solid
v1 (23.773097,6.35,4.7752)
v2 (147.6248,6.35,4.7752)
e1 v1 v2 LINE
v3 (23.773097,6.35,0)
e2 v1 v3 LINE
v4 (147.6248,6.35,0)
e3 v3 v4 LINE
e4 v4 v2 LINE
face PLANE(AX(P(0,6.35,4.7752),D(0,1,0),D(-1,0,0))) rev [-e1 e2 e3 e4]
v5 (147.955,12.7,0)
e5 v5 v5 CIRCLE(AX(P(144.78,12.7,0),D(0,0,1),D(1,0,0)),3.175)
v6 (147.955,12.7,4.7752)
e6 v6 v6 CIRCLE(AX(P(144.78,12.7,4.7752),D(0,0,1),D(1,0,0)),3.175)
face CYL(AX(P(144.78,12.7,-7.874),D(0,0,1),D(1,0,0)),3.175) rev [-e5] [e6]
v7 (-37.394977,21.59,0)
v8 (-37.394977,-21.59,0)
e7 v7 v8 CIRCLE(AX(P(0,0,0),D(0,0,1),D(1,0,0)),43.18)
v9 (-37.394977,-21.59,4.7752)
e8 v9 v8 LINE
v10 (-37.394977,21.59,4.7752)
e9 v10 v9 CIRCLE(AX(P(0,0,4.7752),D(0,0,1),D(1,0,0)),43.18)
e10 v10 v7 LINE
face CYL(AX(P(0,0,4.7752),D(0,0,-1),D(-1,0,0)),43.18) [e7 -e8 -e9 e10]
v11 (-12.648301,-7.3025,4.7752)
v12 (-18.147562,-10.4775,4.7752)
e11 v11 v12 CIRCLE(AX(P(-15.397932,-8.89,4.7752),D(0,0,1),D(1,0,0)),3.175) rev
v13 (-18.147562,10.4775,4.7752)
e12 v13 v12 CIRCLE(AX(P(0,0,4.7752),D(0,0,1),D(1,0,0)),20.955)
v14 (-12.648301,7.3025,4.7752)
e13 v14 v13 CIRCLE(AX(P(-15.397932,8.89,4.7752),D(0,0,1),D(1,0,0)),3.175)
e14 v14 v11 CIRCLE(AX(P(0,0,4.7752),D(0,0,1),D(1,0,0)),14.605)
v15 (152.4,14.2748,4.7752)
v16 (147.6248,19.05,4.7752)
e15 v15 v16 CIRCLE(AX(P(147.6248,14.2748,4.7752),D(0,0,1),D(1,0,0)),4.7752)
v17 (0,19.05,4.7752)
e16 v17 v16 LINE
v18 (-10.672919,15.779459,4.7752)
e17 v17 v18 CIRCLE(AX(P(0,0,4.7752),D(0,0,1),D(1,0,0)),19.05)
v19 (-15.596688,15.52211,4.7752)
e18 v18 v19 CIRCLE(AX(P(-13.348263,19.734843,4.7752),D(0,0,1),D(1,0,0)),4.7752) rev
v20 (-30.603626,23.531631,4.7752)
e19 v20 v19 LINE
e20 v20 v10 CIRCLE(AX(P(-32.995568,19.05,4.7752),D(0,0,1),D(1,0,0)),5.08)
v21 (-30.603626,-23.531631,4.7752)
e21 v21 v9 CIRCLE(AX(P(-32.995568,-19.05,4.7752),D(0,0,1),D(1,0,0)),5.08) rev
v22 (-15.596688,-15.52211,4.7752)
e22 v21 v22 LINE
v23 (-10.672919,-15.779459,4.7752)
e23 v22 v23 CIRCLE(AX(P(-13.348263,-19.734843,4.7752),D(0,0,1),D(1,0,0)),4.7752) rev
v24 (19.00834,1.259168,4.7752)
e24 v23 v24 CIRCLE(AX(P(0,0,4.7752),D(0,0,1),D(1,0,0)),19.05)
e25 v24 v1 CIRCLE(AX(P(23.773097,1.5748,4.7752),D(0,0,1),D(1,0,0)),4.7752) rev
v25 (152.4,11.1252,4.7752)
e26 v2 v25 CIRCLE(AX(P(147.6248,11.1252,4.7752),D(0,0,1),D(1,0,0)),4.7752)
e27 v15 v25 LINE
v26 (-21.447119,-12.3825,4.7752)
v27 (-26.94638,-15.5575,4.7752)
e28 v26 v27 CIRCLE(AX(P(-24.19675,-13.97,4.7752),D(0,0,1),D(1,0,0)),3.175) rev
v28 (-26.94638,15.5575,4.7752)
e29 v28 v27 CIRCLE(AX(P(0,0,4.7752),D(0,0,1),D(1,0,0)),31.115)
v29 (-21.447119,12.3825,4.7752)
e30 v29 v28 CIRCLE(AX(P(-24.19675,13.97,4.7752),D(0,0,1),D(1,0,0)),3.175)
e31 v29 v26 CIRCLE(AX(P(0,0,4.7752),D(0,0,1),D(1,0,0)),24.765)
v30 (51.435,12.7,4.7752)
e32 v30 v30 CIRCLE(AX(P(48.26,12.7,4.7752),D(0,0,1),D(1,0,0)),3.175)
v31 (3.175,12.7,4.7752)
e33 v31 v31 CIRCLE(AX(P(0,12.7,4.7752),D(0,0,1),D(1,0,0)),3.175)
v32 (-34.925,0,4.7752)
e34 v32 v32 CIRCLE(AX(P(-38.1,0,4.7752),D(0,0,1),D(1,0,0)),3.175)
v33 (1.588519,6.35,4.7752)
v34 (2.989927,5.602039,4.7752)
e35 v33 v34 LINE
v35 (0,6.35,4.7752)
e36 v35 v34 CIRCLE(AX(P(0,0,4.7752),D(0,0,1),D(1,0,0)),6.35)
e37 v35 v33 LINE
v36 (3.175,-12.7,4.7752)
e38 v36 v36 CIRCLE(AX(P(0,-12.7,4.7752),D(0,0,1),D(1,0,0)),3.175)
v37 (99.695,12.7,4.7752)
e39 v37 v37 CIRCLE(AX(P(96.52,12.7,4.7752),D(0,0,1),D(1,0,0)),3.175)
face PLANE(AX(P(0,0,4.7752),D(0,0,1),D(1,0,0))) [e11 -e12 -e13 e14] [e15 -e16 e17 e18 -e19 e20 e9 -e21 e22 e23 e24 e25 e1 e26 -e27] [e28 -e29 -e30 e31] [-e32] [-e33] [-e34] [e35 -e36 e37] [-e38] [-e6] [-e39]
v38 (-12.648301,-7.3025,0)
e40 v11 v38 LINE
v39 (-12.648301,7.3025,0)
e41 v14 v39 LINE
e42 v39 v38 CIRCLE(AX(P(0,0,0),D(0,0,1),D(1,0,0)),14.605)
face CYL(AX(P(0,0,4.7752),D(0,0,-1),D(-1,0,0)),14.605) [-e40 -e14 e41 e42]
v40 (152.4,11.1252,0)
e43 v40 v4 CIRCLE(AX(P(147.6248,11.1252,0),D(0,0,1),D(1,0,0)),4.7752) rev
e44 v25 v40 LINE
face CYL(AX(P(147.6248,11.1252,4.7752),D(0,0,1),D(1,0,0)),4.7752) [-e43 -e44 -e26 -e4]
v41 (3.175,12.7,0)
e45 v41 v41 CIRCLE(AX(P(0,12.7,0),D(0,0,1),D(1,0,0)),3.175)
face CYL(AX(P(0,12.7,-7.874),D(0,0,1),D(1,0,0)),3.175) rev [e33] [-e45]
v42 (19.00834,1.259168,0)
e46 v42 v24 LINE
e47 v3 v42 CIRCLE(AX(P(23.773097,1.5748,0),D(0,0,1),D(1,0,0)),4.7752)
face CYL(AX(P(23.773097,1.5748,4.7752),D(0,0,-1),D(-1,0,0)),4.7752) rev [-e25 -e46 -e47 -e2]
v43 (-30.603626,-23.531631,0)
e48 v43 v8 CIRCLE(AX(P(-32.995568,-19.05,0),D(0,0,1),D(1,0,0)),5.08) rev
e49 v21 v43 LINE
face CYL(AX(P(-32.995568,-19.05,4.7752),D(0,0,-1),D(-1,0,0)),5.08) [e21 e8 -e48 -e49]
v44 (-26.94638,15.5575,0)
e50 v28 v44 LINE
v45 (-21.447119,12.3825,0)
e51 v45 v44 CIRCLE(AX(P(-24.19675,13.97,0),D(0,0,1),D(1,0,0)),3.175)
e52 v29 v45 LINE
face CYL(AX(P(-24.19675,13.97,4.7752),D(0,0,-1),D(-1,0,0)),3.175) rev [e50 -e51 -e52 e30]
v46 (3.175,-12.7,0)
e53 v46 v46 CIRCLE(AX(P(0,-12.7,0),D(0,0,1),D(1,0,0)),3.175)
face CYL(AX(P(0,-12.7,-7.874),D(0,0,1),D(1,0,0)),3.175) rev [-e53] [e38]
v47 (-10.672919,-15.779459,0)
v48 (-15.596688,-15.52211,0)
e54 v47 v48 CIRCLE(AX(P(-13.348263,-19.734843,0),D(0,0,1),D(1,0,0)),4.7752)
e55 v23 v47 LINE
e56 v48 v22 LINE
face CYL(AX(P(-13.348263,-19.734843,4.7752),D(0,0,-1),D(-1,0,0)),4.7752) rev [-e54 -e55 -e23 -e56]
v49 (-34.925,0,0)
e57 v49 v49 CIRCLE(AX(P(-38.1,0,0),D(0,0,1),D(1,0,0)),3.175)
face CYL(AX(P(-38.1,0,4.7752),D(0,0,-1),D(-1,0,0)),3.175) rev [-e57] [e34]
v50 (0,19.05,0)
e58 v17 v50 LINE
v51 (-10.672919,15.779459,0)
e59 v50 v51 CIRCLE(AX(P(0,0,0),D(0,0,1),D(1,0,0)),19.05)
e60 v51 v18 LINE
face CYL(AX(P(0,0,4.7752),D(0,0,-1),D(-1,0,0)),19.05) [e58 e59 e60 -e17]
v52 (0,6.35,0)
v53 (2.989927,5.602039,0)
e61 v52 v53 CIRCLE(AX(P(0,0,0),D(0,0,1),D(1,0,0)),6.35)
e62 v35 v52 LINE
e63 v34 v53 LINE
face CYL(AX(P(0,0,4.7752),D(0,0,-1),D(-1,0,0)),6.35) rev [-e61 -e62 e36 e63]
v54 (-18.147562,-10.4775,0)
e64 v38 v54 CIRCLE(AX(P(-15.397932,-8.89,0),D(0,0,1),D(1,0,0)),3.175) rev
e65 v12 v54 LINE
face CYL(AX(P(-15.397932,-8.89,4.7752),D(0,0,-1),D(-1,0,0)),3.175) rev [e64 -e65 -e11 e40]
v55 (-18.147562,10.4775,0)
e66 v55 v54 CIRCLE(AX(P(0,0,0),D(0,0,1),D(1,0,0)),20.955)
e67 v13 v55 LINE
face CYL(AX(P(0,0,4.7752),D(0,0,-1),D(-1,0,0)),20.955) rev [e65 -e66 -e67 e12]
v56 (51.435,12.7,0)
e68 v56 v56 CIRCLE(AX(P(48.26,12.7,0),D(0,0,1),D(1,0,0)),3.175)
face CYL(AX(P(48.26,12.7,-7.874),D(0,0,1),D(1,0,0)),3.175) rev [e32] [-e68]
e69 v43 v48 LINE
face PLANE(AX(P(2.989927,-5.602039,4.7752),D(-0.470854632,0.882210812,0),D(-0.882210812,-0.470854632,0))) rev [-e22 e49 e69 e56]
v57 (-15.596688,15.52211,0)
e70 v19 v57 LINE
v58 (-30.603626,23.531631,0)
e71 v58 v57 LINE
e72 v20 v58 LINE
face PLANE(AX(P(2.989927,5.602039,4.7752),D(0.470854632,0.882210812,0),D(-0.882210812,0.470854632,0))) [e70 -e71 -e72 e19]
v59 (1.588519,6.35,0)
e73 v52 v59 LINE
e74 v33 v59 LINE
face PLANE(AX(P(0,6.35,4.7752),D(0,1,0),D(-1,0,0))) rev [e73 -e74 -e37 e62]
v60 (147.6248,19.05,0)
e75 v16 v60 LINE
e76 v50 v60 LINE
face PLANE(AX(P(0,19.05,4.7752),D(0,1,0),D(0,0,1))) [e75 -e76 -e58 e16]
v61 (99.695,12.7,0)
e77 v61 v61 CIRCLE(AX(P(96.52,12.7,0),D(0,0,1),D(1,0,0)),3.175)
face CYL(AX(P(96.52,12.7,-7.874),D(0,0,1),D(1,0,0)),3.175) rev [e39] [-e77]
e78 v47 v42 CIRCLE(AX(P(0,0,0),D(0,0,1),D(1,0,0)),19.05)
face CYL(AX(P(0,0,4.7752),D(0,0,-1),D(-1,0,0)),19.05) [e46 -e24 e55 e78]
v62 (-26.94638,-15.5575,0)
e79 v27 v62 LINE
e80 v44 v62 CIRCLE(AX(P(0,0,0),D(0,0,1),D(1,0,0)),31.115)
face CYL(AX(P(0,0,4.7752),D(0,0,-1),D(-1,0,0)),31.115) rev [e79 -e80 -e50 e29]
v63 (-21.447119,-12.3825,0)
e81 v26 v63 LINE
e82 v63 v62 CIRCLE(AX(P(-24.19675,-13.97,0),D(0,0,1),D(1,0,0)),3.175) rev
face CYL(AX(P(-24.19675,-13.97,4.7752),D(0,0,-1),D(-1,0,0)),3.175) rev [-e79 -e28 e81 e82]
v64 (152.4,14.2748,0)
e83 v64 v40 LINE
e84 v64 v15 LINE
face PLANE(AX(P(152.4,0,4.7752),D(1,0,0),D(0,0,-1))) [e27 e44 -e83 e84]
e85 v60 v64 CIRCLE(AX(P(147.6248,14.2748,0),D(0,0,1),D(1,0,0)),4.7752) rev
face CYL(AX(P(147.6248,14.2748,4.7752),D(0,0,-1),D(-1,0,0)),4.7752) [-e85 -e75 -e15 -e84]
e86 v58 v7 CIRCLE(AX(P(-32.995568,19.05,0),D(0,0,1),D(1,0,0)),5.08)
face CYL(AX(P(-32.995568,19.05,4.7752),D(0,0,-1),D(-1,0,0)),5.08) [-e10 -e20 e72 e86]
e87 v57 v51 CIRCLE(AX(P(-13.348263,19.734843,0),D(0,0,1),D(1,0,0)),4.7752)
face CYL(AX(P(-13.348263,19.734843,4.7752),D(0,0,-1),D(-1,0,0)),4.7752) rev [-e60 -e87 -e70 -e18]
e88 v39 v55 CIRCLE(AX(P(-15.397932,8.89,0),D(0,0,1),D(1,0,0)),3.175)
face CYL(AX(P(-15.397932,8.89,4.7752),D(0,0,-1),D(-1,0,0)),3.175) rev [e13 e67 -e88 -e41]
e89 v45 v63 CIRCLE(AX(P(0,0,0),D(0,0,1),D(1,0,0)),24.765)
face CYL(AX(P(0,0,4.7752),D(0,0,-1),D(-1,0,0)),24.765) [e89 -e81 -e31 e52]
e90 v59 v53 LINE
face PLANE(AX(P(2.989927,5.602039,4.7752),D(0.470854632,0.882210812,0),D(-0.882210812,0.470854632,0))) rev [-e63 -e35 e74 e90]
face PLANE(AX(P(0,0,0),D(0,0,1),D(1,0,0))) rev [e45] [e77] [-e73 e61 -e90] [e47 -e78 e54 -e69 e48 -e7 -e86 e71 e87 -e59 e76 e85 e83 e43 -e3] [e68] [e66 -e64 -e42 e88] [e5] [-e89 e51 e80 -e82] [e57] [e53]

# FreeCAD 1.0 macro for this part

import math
import FreeCAD as App
import Part
import Sketcher
Q = App.Units.Quantity


def edges_at(feature, points):
    """Names of the edges that pass closest to the given points."""
    edges = feature.Shape.Edges
    near = lambda p: min(range(len(edges)), key=lambda i: edges[i].distToShape(Part.Vertex(*p))[0])
    return sorted({f"Edge{near(p) + 1}" for p in points})

doc = App.newDocument("Part")
body = doc.addObject("PartDesign::Body", "Body")

# Sketch on XY plane
sketch1 = doc.addObject("Sketcher::SketchObject", "Sketch")
body.addObject(sketch1)
sketch1.AttachmentSupport = (doc.XY_Plane, [""])
sketch1.MapMode = "FlatFace"
sketch1.addGeometry(Part.ArcOfCircle(Part.Circle(App.Vector(0, 0, 0), App.Vector(0, 0, 1), 43.2), math.radians(150), math.radians(210)), False)
sketch1.addGeometry(Part.ArcOfCircle(Part.Circle(App.Vector(-33, -19.1, 0), App.Vector(0, 0, 1), 5.1), math.radians(-150), math.radians(-62)), False)
sketch1.addGeometry(Part.LineSegment(App.Vector(-30.6, -23.5, 0), App.Vector(-12.9, -14.1, 0)), False)
sketch1.addGeometry(Part.ArcOfCircle(Part.Circle(App.Vector(0, 0, 0), App.Vector(0, 0, 1), 19.1), math.radians(-132), math.radians(19)), False)
sketch1.addGeometry(Part.LineSegment(App.Vector(18, 6.3, 0), App.Vector(152.4, 6.3, 0)), False)
sketch1.addGeometry(Part.LineSegment(App.Vector(152.4, 6.3, 0), App.Vector(152.4, 19.1, 0)), False)
sketch1.addGeometry(Part.LineSegment(App.Vector(152.4, 19.1, 0), App.Vector(0, 19.1, 0)), False)
sketch1.addGeometry(Part.ArcOfCircle(Part.Circle(App.Vector(0, 0, 0), App.Vector(0, 0, 1), 19), math.radians(90), math.radians(132)), False)
sketch1.addGeometry(Part.LineSegment(App.Vector(-12.9, 14.1, 0), App.Vector(-30.6, 23.5, 0)), False)
sketch1.addGeometry(Part.ArcOfCircle(Part.Circle(App.Vector(-33, 19.1, 0), App.Vector(0, 0, 1), 5.1), math.radians(62), math.radians(150)), False)
sketch1.addGeometry(Part.LineSegment(App.Vector(1.6, 6.3, 0), App.Vector(3, 5.6, 0)), False)
sketch1.addGeometry(Part.ArcOfCircle(Part.Circle(App.Vector(0, 0, 0), App.Vector(0, 0, 1), 6.3), math.radians(90), math.radians(422)), False)
sketch1.addGeometry(Part.LineSegment(App.Vector(0, 6.3, 0), App.Vector(1.6, 6.3, 0)), False)
sketch1.addGeometry(Part.Circle(App.Vector(-38.1, 0, 0), App.Vector(0, 0, 1), 3.2), False)
sketch1.addGeometry(Part.ArcOfCircle(Part.Circle(App.Vector(-24.2, -14, 0), App.Vector(0, 0, 1), 3.2), math.radians(-150), math.radians(30)), False)
sketch1.addGeometry(Part.ArcOfCircle(Part.Circle(App.Vector(0, 0, 0), App.Vector(0, 0, 1), 31.1), math.radians(150), math.radians(210)), False)
sketch1.addGeometry(Part.ArcOfCircle(Part.Circle(App.Vector(-24.2, 14, 0), App.Vector(0, 0, 1), 3.2), math.radians(-30), math.radians(150)), False)
sketch1.addGeometry(Part.ArcOfCircle(Part.Circle(App.Vector(0, 0, 0), App.Vector(0, 0, 1), 24.8), math.radians(150), math.radians(210)), False)
sketch1.addGeometry(Part.ArcOfCircle(Part.Circle(App.Vector(-15.4, -8.9, 0), App.Vector(0, 0, 1), 3.2), math.radians(-150), math.radians(30)), False)
sketch1.addGeometry(Part.ArcOfCircle(Part.Circle(App.Vector(0, 0, 0), App.Vector(0, 0, 1), 21), math.radians(150), math.radians(210)), False)
sketch1.addGeometry(Part.ArcOfCircle(Part.Circle(App.Vector(-15.4, 8.9, 0), App.Vector(0, 0, 1), 3.2), math.radians(-30), math.radians(150)), False)
sketch1.addGeometry(Part.ArcOfCircle(Part.Circle(App.Vector(0, 0, 0), App.Vector(0, 0, 1), 14.6), math.radians(150), math.radians(210)), False)
sketch1.addConstraint(Sketcher.Constraint("Tangent", 0, 2, 1, 1))
sketch1.addConstraint(Sketcher.Constraint("Tangent", 1, 2, 2, 1))
sketch1.addConstraint(Sketcher.Constraint("Coincident", 2, 2, 3, 1))
sketch1.addConstraint(Sketcher.Constraint("Coincident", 3, 2, 4, 1))
sketch1.addConstraint(Sketcher.Constraint("Coincident", 4, 2, 5, 1))
sketch1.addConstraint(Sketcher.Constraint("Coincident", 5, 2, 6, 1))
sketch1.addConstraint(Sketcher.Constraint("Tangent", 6, 2, 7, 1))
sketch1.addConstraint(Sketcher.Constraint("Coincident", 7, 2, 8, 1))
sketch1.addConstraint(Sketcher.Constraint("Tangent", 8, 2, 9, 1))
sketch1.addConstraint(Sketcher.Constraint("Tangent", 9, 2, 0, 1))
sketch1.addConstraint(Sketcher.Constraint("Tangent", 10, 2, 11, 2))
sketch1.addConstraint(Sketcher.Constraint("Tangent", 11, 1, 12, 1))
sketch1.addConstraint(Sketcher.Constraint("Coincident", 12, 2, 10, 1))
sketch1.addConstraint(Sketcher.Constraint("Tangent", 14, 1, 15, 2))
sketch1.addConstraint(Sketcher.Constraint("Tangent", 15, 1, 16, 2))
sketch1.addConstraint(Sketcher.Constraint("Tangent", 16, 1, 17, 1))
sketch1.addConstraint(Sketcher.Constraint("Tangent", 17, 2, 14, 2))
sketch1.addConstraint(Sketcher.Constraint("Tangent", 18, 1, 19, 2))
sketch1.addConstraint(Sketcher.Constraint("Tangent", 19, 1, 20, 2))
sketch1.addConstraint(Sketcher.Constraint("Tangent", 20, 1, 21, 1))
sketch1.addConstraint(Sketcher.Constraint("Tangent", 21, 2, 18, 2))
sketch1.addConstraint(Sketcher.Constraint("Horizontal", 4))
sketch1.addConstraint(Sketcher.Constraint("Vertical", 5))
sketch1.addConstraint(Sketcher.Constraint("Horizontal", 6))
sketch1.addConstraint(Sketcher.Constraint("Horizontal", 12))
sketch1.addConstraint(Sketcher.Constraint("Coincident", 0, 3, -1, 1))
sketch1.addConstraint(Sketcher.Constraint("Coincident", 3, 3, -1, 1))
sketch1.addConstraint(Sketcher.Constraint("Coincident", 7, 3, -1, 1))
sketch1.addConstraint(Sketcher.Constraint("Coincident", 11, 3, -1, 1))
sketch1.addConstraint(Sketcher.Constraint("Coincident", 15, 3, -1, 1))
sketch1.addConstraint(Sketcher.Constraint("Coincident", 17, 3, -1, 1))
sketch1.addConstraint(Sketcher.Constraint("Coincident", 19, 3, -1, 1))
sketch1.addConstraint(Sketcher.Constraint("Coincident", 21, 3, -1, 1))
sketch1.addConstraint(Sketcher.Constraint("Equal", 3, 7))
sketch1.addConstraint(Sketcher.Constraint("Equal", 1, 9))
sketch1.addConstraint(Sketcher.Constraint("Equal", 13, 14))
sketch1.addConstraint(Sketcher.Constraint("Equal", 16, 18))
sketch1.addConstraint(Sketcher.Constraint("Symmetric", 1, 2, 8, 2, -1))
sketch1.addConstraint(Sketcher.Constraint("PointOnObject", 13, 3, -1))
sketch1.addConstraint(Sketcher.Constraint("Parallel", 8, 10))
sketch1.addConstraint(Sketcher.Constraint("Horizontal", 9, 3, 5, 2))
sketch1.addConstraint(Sketcher.Constraint("Horizontal", 4, 2, 11, 1))
sketch1.addConstraint(Sketcher.Constraint("Vertical", 14, 3, 16, 3))
sketch1.addConstraint(Sketcher.Constraint("Vertical", 18, 3, 20, 3))
sketch1.addConstraint(Sketcher.Constraint("Radius", 0, Q("1.7 in")))
sketch1.addConstraint(Sketcher.Constraint("Radius", 1, Q("0.2 in")))
sketch1.addConstraint(Sketcher.Constraint("Diameter", 13, Q("0.25 in")))
sketch1.addConstraint(Sketcher.Constraint("DistanceX", 6, 2, 6, 1, Q("6 in")))
sketch1.addConstraint(Sketcher.Constraint("Radius", 3, Q("0.75 in")))
sketch1.addConstraint(Sketcher.Constraint("Radius", 11, Q("0.25 in")))
sketch1.addConstraint(Sketcher.Constraint("Radius", 15, Q("1.225 in")))
sketch1.addConstraint(Sketcher.Constraint("Radius", 19, Q("0.825 in")))
sketch1.addConstraint(Sketcher.Constraint("DistanceX", 13, 3, -1, 1, Q("1.5 in")))
sketch1.addConstraint(Sketcher.Constraint("DistanceY", 1, 3, 14, 3, Q("0.2 in")))
sketch1.addConstraint(Sketcher.Constraint("DistanceY", 14, 3, 18, 3, Q("0.2 in")))
sketch1.addConstraint(Sketcher.Constraint("DistanceX", 12, 1, 12, 2, 1.588519))
pad1 = doc.addObject("PartDesign::Pad", "Pad")
body.addObject(pad1)
pad1.Profile = sketch1
pad1.Length = Q("0.188 in")
doc.recompute()

fillet = doc.addObject("PartDesign::Fillet", "Fillet")
body.addObject(fillet)
fillet.Base = (pad1, edges_at(pad1, [
    (-12.855, 14.059, 2.388),
    (152.4, 19.05, 2.388),
    (152.4, 6.35, 2.388),
    (17.961, 6.35, 2.388),
    (-12.855, -14.059, 2.388),
]))
fillet.Radius = Q("0.188 in")

# Sketch on XY plane
sketch2 = doc.addObject("Sketcher::SketchObject", "Sketch001")
body.addObject(sketch2)
sketch2.AttachmentSupport = (doc.XY_Plane, [""])
sketch2.MapMode = "FlatFace"
sketch2.AttachmentOffset = App.Placement(App.Vector(0, 0, 0.188 * 25.4), App.Rotation())
sketch2.addGeometry(Part.Circle(App.Vector(0, 12.7, 0), App.Vector(0, 0, 1), 3.2), False)
sketch2.addGeometry(Part.Circle(App.Vector(0, -12.7, 0), App.Vector(0, 0, 1), 3.2), False)
sketch2.addGeometry(Part.Circle(App.Vector(48.3, 12.7, 0), App.Vector(0, 0, 1), 3.2), False)
sketch2.addGeometry(Part.Circle(App.Vector(96.5, 12.7, 0), App.Vector(0, 0, 1), 3.2), False)
sketch2.addGeometry(Part.Circle(App.Vector(144.8, 12.7, 0), App.Vector(0, 0, 1), 3.2), False)
sketch2.addConstraint(Sketcher.Constraint("Equal", 0, 1))
sketch2.addConstraint(Sketcher.Constraint("Equal", 1, 2))
sketch2.addConstraint(Sketcher.Constraint("Equal", 2, 3))
sketch2.addConstraint(Sketcher.Constraint("Equal", 3, 4))
sketch2.addConstraint(Sketcher.Constraint("Symmetric", 0, 3, 1, 3, -1, 1))
sketch2.addConstraint(Sketcher.Constraint("PointOnObject", 0, 3, -2))
sketch2.addConstraint(Sketcher.Constraint("Horizontal", 0, 3, 2, 3))
sketch2.addConstraint(Sketcher.Constraint("Horizontal", 2, 3, 3, 3))
sketch2.addConstraint(Sketcher.Constraint("Horizontal", 3, 3, 4, 3))
sketch2.addConstraint(Sketcher.Constraint("Diameter", 0, Q("0.25 in")))
sketch2.addConstraint(Sketcher.Constraint("DistanceY", 1, 3, 0, 3, Q("1 in")))
sketch2.addConstraint(Sketcher.Constraint("DistanceX", -1, 1, 2, 3, Q("1.9 in")))
sketch2.addConstraint(Sketcher.Constraint("DistanceX", -1, 1, 3, 3, Q("3.8 in")))
sketch2.addConstraint(Sketcher.Constraint("DistanceX", -1, 1, 4, 3, Q("5.7 in")))
pocket1 = doc.addObject("PartDesign::Pocket", "Pocket")
body.addObject(pocket1)
pocket1.Profile = sketch2
pocket1.Length = Q("0.498 in")

doc.recompute()
